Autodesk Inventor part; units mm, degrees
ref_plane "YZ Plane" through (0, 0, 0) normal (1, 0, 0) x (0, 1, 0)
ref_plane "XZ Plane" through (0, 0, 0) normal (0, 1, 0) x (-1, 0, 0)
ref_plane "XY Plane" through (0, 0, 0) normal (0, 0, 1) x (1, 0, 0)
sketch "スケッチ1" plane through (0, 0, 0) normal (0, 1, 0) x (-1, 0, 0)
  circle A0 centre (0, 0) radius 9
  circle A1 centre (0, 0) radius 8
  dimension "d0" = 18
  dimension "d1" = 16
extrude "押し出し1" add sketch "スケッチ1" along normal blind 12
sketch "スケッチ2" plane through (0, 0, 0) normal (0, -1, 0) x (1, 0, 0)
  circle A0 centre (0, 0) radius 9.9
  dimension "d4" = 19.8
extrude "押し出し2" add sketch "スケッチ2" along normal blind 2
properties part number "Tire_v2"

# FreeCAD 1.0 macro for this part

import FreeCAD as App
import Part
import Sketcher
from FreeCAD import Vector
Q = App.Units.Quantity

doc = App.newDocument("Part")
body = doc.addObject("PartDesign::Body", "Body")

sketch1 = body.newObject("Sketcher::SketchObject", "Sketch")
sketch1.AttachmentSupport = (doc.getObject("XZ_Plane"), [""])
sketch1.MapMode = "FlatFace"
sketch1.addGeometry([
    Part.Circle(Vector(0, 0, 0), Vector(0, 0, 1), 9),
    Part.Circle(Vector(0, 0, 0), Vector(0, 0, 1), 8),
], False)
sketch1.addConstraint([
    Sketcher.Constraint("Coincident", 0, 3, -1, 1),
    Sketcher.Constraint("Coincident", 1, 3, -1, 1),
    Sketcher.Constraint("Diameter", 0, Q("18 mm")),
    Sketcher.Constraint("Diameter", 1, Q("16 mm")),
])
pad1 = body.newObject("PartDesign::Pad", "Pad")
pad1.Profile = sketch1
pad1.Length = 12
pad1.Reversed = True

sketch2 = body.newObject("Sketcher::SketchObject", "Sketch001")
sketch2.AttachmentSupport = (doc.getObject("XZ_Plane"), [""])
sketch2.MapMode = "FlatFace"
sketch2.addGeometry(Part.Circle(Vector(0, 0, 0), Vector(0, 0, 1), 10), False)
sketch2.addConstraint([
    Sketcher.Constraint("Coincident", 0, 3, -1, 1),
    Sketcher.Constraint("Diameter", 0, Q("19.8 mm")),
])
pad2 = body.newObject("PartDesign::Pad", "Pad001")
pad2.Profile = sketch2
pad2.Length = 2

doc.recompute()
